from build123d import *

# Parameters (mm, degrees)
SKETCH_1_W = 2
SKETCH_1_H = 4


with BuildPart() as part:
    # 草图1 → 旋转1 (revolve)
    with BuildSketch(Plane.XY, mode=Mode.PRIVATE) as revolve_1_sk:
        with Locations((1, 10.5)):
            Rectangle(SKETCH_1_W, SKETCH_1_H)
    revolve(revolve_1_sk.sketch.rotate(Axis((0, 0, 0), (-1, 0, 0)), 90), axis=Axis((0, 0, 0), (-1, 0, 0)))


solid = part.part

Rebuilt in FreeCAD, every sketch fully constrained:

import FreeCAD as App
import Part
import Sketcher
Q = App.Units.Quantity

doc = App.newDocument("Part")
body = doc.addObject("PartDesign::Body", "Body")

# Sketch on XY plane
sketch1 = doc.addObject("Sketcher::SketchObject", "Sketch")
body.addObject(sketch1)
sketch1.AttachmentSupport = (doc.XY_Plane, [""])
sketch1.MapMode = "FlatFace"
sketch1.addGeometry(Part.LineSegment(App.Vector(0, 12.5, 0), App.Vector(0, 8.5, 0)), False)
sketch1.addGeometry(Part.LineSegment(App.Vector(0, 8.5, 0), App.Vector(2, 8.5, 0)), False)
sketch1.addGeometry(Part.LineSegment(App.Vector(2, 8.5, 0), App.Vector(2, 12.5, 0)), False)
sketch1.addGeometry(Part.LineSegment(App.Vector(2, 12.5, 0), App.Vector(0, 12.5, 0)), False)
sketch1.addConstraint(Sketcher.Constraint("Coincident", 0, 2, 1, 1))
sketch1.addConstraint(Sketcher.Constraint("Coincident", 1, 2, 2, 1))
sketch1.addConstraint(Sketcher.Constraint("Coincident", 2, 2, 3, 1))
sketch1.addConstraint(Sketcher.Constraint("Coincident", 3, 2, 0, 1))
sketch1.addConstraint(Sketcher.Constraint("Vertical", 0))
sketch1.addConstraint(Sketcher.Constraint("Horizontal", 1))
sketch1.addConstraint(Sketcher.Constraint("Vertical", 2))
sketch1.addConstraint(Sketcher.Constraint("Horizontal", 3))
sketch1.addConstraint(Sketcher.Constraint("PointOnObject", 0, 2, -2))
sketch1.addConstraint(Sketcher.Constraint("DistanceX", 1, 1, 1, 2, Q("2 mm")))
sketch1.addConstraint(Sketcher.Constraint("DistanceY", 0, 2, 0, 1, Q("4 mm")))
sketch1.addConstraint(Sketcher.Constraint("DistanceY", -1, 1, 0, 2, Q("8.5 mm")))
revolution = doc.addObject("PartDesign::Revolution", "Revolution")
body.addObject(revolution)
revolution.Profile = sketch1
revolution.ReferenceAxis = (sketch1, ["H_Axis"])
revolution.Angle = 360

doc.recompute()
